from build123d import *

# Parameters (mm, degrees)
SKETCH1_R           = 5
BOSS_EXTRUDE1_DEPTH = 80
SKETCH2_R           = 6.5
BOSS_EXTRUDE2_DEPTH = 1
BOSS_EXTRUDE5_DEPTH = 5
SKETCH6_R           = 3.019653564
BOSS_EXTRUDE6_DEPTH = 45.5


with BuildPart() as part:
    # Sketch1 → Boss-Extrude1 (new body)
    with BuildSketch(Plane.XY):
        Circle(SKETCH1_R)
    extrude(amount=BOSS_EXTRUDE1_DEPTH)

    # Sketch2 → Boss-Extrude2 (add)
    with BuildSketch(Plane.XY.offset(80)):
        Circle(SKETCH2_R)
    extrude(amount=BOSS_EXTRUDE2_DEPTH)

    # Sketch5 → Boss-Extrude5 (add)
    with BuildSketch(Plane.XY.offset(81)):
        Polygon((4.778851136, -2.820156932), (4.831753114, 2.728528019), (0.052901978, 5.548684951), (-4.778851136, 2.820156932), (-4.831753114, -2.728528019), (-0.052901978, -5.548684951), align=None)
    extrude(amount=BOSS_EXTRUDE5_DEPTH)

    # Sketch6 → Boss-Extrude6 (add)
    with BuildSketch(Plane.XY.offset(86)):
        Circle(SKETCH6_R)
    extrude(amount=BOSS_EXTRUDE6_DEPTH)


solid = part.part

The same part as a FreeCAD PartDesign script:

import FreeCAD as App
import Part
import Sketcher

V = App.Vector
Q = App.Units.Quantity


def add_polygon(sketch, points):
    """Adds a closed chain of lines whose ends are joined by coincident constraints."""
    first, n = sketch.GeometryCount, len(points)
    for a, b in zip(points, points[1:] + points[:1]):
        sketch.addGeometry(Part.LineSegment(App.Vector(*a, 0), App.Vector(*b, 0)), False)
    for i in range(n):
        sketch.addConstraint(Sketcher.Constraint("Coincident", first + i, 2, first + (i + 1) % n, 1))

doc = App.newDocument("Part")
body = doc.addObject("PartDesign::Body", "Body")

# Sketch on XY plane
sketch1 = doc.addObject("Sketcher::SketchObject", "Sketch")
body.addObject(sketch1)
sketch1.AttachmentSupport = (doc.XY_Plane, [""])
sketch1.MapMode = "FlatFace"
sketch1.addGeometry(Part.Circle(V(0, 0, 0), V(0, 0, 1), 5), False)
sketch1.addConstraint([
    Sketcher.Constraint("Coincident", 0, 3, -1, 1),
    Sketcher.Constraint("Diameter", 0, Q("10 mm")),
])
pad1 = doc.addObject("PartDesign::Pad", "Pad")
body.addObject(pad1)
pad1.Profile = sketch1
pad1.Length = 80

# Sketch on XY plane
sketch2 = doc.addObject("Sketcher::SketchObject", "Sketch001")
body.addObject(sketch2)
sketch2.AttachmentSupport = (doc.XY_Plane, [""])
sketch2.MapMode = "FlatFace"
sketch2.AttachmentOffset = App.Placement(V(0, 0, 80), App.Rotation())
sketch2.addGeometry(Part.Circle(V(0, 0, 0), V(0, 0, 1), 6), False)
sketch2.addConstraint([
    Sketcher.Constraint("Coincident", 0, 3, -1, 1),
    Sketcher.Constraint("Diameter", 0, Q("13 mm")),
])
pad2 = doc.addObject("PartDesign::Pad", "Pad001")
body.addObject(pad2)
pad2.Profile = sketch2
pad2.Length = 1

# Sketch on XY plane
sketch3 = doc.addObject("Sketcher::SketchObject", "Sketch002")
body.addObject(sketch3)
sketch3.AttachmentSupport = (doc.XY_Plane, [""])
sketch3.MapMode = "FlatFace"
sketch3.AttachmentOffset = App.Placement(V(0, 0, 81), App.Rotation())
add_polygon(sketch3, [(5, -3), (5, 3), (0, 6), (-5, 3), (-5, -3), (0, -6)])  # lines 0-5
sketch3.addConstraint([
    Sketcher.Constraint("Symmetric", 0, 2, 3, 2, -1, 1),
    Sketcher.Constraint("Symmetric", 1, 2, 4, 2, -1, 1),
    Sketcher.Constraint("Symmetric", 2, 2, 5, 2, -1, 1),
    Sketcher.Constraint("Equal", 0, 1),
    Sketcher.Constraint("Equal", 1, 2),
    Sketcher.Constraint("DistanceX", -1, 1, 1, 2, Q("0.052902 mm")),
    Sketcher.Constraint("DistanceX", 3, 2, 2, 2, Q("0.052902 mm")),
    Sketcher.Constraint("DistanceY", -1, 1, 0, 2, Q("2.728528 mm")),
    Sketcher.Constraint("DistanceX", 2, 2, -1, 1, Q("4.778851 mm")),
])
pad3 = doc.addObject("PartDesign::Pad", "Pad002")
body.addObject(pad3)
pad3.Profile = sketch3
pad3.Length = 5

# Sketch on XY plane
sketch4 = doc.addObject("Sketcher::SketchObject", "Sketch003")
body.addObject(sketch4)
sketch4.AttachmentSupport = (doc.XY_Plane, [""])
sketch4.MapMode = "FlatFace"
sketch4.AttachmentOffset = App.Placement(V(0, 0, 86), App.Rotation())
sketch4.addGeometry(Part.Circle(V(0, 0, 0), V(0, 0, 1), 3), False)
sketch4.addConstraint([
    Sketcher.Constraint("Coincident", 0, 3, -1, 1),
    Sketcher.Constraint("Diameter", 0, Q("6.039307 mm")),
])
pad4 = doc.addObject("PartDesign::Pad", "Pad003")
body.addObject(pad4)
pad4.Profile = sketch4
pad4.Length = 45.5

doc.recompute()
